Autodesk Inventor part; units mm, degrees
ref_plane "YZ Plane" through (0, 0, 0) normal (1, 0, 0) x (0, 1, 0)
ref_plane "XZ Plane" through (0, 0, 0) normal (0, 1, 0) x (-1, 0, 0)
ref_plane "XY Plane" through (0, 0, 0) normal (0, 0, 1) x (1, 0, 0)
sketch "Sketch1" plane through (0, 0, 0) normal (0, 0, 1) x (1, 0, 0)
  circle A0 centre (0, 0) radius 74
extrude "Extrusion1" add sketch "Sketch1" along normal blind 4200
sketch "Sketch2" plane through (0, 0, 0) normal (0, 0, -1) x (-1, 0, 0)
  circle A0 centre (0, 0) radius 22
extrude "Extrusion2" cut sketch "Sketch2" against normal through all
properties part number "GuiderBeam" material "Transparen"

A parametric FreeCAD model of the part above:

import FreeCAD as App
import Part
import Sketcher

V = App.Vector
Q = App.Units.Quantity

doc = App.newDocument("Part")
body = doc.addObject("PartDesign::Body", "Body")

# Sketch on XY plane
sketch1 = body.newObject("Sketcher::SketchObject", "Sketch")
sketch1.AttachmentSupport = (doc.getObject("XY_Plane"), [""])
sketch1.MapMode = "FlatFace"
sketch1.addGeometry(Part.Circle(V(0, 0, 0), V(0, 0, 1), 74), False)
sketch1.addConstraint(Sketcher.Constraint("Coincident", 0, 3, -1, 1))
sketch1.addConstraint(Sketcher.Constraint("Diameter", 0, Q("148 mm")))
pad1 = body.newObject("PartDesign::Pad", "Pad")
pad1.Profile = sketch1
pad1.Length = 4200

# Sketch on XY plane
sketch2 = body.newObject("Sketcher::SketchObject", "Sketch001")
sketch2.AttachmentSupport = (doc.getObject("XY_Plane"), [""])
sketch2.MapMode = "FlatFace"
sketch2.addGeometry(Part.Circle(V(0, 0, 0), V(0, 0, 1), 22), False)
sketch2.addConstraint(Sketcher.Constraint("Coincident", 0, 3, -1, 1))
sketch2.addConstraint(Sketcher.Constraint("Diameter", 0, Q("44 mm")))
pocket1 = body.newObject("PartDesign::Pocket", "Pocket")
pocket1.Profile = sketch2
pocket1.Type = "ThroughAll"
pocket1.Reversed = True

doc.recompute()
